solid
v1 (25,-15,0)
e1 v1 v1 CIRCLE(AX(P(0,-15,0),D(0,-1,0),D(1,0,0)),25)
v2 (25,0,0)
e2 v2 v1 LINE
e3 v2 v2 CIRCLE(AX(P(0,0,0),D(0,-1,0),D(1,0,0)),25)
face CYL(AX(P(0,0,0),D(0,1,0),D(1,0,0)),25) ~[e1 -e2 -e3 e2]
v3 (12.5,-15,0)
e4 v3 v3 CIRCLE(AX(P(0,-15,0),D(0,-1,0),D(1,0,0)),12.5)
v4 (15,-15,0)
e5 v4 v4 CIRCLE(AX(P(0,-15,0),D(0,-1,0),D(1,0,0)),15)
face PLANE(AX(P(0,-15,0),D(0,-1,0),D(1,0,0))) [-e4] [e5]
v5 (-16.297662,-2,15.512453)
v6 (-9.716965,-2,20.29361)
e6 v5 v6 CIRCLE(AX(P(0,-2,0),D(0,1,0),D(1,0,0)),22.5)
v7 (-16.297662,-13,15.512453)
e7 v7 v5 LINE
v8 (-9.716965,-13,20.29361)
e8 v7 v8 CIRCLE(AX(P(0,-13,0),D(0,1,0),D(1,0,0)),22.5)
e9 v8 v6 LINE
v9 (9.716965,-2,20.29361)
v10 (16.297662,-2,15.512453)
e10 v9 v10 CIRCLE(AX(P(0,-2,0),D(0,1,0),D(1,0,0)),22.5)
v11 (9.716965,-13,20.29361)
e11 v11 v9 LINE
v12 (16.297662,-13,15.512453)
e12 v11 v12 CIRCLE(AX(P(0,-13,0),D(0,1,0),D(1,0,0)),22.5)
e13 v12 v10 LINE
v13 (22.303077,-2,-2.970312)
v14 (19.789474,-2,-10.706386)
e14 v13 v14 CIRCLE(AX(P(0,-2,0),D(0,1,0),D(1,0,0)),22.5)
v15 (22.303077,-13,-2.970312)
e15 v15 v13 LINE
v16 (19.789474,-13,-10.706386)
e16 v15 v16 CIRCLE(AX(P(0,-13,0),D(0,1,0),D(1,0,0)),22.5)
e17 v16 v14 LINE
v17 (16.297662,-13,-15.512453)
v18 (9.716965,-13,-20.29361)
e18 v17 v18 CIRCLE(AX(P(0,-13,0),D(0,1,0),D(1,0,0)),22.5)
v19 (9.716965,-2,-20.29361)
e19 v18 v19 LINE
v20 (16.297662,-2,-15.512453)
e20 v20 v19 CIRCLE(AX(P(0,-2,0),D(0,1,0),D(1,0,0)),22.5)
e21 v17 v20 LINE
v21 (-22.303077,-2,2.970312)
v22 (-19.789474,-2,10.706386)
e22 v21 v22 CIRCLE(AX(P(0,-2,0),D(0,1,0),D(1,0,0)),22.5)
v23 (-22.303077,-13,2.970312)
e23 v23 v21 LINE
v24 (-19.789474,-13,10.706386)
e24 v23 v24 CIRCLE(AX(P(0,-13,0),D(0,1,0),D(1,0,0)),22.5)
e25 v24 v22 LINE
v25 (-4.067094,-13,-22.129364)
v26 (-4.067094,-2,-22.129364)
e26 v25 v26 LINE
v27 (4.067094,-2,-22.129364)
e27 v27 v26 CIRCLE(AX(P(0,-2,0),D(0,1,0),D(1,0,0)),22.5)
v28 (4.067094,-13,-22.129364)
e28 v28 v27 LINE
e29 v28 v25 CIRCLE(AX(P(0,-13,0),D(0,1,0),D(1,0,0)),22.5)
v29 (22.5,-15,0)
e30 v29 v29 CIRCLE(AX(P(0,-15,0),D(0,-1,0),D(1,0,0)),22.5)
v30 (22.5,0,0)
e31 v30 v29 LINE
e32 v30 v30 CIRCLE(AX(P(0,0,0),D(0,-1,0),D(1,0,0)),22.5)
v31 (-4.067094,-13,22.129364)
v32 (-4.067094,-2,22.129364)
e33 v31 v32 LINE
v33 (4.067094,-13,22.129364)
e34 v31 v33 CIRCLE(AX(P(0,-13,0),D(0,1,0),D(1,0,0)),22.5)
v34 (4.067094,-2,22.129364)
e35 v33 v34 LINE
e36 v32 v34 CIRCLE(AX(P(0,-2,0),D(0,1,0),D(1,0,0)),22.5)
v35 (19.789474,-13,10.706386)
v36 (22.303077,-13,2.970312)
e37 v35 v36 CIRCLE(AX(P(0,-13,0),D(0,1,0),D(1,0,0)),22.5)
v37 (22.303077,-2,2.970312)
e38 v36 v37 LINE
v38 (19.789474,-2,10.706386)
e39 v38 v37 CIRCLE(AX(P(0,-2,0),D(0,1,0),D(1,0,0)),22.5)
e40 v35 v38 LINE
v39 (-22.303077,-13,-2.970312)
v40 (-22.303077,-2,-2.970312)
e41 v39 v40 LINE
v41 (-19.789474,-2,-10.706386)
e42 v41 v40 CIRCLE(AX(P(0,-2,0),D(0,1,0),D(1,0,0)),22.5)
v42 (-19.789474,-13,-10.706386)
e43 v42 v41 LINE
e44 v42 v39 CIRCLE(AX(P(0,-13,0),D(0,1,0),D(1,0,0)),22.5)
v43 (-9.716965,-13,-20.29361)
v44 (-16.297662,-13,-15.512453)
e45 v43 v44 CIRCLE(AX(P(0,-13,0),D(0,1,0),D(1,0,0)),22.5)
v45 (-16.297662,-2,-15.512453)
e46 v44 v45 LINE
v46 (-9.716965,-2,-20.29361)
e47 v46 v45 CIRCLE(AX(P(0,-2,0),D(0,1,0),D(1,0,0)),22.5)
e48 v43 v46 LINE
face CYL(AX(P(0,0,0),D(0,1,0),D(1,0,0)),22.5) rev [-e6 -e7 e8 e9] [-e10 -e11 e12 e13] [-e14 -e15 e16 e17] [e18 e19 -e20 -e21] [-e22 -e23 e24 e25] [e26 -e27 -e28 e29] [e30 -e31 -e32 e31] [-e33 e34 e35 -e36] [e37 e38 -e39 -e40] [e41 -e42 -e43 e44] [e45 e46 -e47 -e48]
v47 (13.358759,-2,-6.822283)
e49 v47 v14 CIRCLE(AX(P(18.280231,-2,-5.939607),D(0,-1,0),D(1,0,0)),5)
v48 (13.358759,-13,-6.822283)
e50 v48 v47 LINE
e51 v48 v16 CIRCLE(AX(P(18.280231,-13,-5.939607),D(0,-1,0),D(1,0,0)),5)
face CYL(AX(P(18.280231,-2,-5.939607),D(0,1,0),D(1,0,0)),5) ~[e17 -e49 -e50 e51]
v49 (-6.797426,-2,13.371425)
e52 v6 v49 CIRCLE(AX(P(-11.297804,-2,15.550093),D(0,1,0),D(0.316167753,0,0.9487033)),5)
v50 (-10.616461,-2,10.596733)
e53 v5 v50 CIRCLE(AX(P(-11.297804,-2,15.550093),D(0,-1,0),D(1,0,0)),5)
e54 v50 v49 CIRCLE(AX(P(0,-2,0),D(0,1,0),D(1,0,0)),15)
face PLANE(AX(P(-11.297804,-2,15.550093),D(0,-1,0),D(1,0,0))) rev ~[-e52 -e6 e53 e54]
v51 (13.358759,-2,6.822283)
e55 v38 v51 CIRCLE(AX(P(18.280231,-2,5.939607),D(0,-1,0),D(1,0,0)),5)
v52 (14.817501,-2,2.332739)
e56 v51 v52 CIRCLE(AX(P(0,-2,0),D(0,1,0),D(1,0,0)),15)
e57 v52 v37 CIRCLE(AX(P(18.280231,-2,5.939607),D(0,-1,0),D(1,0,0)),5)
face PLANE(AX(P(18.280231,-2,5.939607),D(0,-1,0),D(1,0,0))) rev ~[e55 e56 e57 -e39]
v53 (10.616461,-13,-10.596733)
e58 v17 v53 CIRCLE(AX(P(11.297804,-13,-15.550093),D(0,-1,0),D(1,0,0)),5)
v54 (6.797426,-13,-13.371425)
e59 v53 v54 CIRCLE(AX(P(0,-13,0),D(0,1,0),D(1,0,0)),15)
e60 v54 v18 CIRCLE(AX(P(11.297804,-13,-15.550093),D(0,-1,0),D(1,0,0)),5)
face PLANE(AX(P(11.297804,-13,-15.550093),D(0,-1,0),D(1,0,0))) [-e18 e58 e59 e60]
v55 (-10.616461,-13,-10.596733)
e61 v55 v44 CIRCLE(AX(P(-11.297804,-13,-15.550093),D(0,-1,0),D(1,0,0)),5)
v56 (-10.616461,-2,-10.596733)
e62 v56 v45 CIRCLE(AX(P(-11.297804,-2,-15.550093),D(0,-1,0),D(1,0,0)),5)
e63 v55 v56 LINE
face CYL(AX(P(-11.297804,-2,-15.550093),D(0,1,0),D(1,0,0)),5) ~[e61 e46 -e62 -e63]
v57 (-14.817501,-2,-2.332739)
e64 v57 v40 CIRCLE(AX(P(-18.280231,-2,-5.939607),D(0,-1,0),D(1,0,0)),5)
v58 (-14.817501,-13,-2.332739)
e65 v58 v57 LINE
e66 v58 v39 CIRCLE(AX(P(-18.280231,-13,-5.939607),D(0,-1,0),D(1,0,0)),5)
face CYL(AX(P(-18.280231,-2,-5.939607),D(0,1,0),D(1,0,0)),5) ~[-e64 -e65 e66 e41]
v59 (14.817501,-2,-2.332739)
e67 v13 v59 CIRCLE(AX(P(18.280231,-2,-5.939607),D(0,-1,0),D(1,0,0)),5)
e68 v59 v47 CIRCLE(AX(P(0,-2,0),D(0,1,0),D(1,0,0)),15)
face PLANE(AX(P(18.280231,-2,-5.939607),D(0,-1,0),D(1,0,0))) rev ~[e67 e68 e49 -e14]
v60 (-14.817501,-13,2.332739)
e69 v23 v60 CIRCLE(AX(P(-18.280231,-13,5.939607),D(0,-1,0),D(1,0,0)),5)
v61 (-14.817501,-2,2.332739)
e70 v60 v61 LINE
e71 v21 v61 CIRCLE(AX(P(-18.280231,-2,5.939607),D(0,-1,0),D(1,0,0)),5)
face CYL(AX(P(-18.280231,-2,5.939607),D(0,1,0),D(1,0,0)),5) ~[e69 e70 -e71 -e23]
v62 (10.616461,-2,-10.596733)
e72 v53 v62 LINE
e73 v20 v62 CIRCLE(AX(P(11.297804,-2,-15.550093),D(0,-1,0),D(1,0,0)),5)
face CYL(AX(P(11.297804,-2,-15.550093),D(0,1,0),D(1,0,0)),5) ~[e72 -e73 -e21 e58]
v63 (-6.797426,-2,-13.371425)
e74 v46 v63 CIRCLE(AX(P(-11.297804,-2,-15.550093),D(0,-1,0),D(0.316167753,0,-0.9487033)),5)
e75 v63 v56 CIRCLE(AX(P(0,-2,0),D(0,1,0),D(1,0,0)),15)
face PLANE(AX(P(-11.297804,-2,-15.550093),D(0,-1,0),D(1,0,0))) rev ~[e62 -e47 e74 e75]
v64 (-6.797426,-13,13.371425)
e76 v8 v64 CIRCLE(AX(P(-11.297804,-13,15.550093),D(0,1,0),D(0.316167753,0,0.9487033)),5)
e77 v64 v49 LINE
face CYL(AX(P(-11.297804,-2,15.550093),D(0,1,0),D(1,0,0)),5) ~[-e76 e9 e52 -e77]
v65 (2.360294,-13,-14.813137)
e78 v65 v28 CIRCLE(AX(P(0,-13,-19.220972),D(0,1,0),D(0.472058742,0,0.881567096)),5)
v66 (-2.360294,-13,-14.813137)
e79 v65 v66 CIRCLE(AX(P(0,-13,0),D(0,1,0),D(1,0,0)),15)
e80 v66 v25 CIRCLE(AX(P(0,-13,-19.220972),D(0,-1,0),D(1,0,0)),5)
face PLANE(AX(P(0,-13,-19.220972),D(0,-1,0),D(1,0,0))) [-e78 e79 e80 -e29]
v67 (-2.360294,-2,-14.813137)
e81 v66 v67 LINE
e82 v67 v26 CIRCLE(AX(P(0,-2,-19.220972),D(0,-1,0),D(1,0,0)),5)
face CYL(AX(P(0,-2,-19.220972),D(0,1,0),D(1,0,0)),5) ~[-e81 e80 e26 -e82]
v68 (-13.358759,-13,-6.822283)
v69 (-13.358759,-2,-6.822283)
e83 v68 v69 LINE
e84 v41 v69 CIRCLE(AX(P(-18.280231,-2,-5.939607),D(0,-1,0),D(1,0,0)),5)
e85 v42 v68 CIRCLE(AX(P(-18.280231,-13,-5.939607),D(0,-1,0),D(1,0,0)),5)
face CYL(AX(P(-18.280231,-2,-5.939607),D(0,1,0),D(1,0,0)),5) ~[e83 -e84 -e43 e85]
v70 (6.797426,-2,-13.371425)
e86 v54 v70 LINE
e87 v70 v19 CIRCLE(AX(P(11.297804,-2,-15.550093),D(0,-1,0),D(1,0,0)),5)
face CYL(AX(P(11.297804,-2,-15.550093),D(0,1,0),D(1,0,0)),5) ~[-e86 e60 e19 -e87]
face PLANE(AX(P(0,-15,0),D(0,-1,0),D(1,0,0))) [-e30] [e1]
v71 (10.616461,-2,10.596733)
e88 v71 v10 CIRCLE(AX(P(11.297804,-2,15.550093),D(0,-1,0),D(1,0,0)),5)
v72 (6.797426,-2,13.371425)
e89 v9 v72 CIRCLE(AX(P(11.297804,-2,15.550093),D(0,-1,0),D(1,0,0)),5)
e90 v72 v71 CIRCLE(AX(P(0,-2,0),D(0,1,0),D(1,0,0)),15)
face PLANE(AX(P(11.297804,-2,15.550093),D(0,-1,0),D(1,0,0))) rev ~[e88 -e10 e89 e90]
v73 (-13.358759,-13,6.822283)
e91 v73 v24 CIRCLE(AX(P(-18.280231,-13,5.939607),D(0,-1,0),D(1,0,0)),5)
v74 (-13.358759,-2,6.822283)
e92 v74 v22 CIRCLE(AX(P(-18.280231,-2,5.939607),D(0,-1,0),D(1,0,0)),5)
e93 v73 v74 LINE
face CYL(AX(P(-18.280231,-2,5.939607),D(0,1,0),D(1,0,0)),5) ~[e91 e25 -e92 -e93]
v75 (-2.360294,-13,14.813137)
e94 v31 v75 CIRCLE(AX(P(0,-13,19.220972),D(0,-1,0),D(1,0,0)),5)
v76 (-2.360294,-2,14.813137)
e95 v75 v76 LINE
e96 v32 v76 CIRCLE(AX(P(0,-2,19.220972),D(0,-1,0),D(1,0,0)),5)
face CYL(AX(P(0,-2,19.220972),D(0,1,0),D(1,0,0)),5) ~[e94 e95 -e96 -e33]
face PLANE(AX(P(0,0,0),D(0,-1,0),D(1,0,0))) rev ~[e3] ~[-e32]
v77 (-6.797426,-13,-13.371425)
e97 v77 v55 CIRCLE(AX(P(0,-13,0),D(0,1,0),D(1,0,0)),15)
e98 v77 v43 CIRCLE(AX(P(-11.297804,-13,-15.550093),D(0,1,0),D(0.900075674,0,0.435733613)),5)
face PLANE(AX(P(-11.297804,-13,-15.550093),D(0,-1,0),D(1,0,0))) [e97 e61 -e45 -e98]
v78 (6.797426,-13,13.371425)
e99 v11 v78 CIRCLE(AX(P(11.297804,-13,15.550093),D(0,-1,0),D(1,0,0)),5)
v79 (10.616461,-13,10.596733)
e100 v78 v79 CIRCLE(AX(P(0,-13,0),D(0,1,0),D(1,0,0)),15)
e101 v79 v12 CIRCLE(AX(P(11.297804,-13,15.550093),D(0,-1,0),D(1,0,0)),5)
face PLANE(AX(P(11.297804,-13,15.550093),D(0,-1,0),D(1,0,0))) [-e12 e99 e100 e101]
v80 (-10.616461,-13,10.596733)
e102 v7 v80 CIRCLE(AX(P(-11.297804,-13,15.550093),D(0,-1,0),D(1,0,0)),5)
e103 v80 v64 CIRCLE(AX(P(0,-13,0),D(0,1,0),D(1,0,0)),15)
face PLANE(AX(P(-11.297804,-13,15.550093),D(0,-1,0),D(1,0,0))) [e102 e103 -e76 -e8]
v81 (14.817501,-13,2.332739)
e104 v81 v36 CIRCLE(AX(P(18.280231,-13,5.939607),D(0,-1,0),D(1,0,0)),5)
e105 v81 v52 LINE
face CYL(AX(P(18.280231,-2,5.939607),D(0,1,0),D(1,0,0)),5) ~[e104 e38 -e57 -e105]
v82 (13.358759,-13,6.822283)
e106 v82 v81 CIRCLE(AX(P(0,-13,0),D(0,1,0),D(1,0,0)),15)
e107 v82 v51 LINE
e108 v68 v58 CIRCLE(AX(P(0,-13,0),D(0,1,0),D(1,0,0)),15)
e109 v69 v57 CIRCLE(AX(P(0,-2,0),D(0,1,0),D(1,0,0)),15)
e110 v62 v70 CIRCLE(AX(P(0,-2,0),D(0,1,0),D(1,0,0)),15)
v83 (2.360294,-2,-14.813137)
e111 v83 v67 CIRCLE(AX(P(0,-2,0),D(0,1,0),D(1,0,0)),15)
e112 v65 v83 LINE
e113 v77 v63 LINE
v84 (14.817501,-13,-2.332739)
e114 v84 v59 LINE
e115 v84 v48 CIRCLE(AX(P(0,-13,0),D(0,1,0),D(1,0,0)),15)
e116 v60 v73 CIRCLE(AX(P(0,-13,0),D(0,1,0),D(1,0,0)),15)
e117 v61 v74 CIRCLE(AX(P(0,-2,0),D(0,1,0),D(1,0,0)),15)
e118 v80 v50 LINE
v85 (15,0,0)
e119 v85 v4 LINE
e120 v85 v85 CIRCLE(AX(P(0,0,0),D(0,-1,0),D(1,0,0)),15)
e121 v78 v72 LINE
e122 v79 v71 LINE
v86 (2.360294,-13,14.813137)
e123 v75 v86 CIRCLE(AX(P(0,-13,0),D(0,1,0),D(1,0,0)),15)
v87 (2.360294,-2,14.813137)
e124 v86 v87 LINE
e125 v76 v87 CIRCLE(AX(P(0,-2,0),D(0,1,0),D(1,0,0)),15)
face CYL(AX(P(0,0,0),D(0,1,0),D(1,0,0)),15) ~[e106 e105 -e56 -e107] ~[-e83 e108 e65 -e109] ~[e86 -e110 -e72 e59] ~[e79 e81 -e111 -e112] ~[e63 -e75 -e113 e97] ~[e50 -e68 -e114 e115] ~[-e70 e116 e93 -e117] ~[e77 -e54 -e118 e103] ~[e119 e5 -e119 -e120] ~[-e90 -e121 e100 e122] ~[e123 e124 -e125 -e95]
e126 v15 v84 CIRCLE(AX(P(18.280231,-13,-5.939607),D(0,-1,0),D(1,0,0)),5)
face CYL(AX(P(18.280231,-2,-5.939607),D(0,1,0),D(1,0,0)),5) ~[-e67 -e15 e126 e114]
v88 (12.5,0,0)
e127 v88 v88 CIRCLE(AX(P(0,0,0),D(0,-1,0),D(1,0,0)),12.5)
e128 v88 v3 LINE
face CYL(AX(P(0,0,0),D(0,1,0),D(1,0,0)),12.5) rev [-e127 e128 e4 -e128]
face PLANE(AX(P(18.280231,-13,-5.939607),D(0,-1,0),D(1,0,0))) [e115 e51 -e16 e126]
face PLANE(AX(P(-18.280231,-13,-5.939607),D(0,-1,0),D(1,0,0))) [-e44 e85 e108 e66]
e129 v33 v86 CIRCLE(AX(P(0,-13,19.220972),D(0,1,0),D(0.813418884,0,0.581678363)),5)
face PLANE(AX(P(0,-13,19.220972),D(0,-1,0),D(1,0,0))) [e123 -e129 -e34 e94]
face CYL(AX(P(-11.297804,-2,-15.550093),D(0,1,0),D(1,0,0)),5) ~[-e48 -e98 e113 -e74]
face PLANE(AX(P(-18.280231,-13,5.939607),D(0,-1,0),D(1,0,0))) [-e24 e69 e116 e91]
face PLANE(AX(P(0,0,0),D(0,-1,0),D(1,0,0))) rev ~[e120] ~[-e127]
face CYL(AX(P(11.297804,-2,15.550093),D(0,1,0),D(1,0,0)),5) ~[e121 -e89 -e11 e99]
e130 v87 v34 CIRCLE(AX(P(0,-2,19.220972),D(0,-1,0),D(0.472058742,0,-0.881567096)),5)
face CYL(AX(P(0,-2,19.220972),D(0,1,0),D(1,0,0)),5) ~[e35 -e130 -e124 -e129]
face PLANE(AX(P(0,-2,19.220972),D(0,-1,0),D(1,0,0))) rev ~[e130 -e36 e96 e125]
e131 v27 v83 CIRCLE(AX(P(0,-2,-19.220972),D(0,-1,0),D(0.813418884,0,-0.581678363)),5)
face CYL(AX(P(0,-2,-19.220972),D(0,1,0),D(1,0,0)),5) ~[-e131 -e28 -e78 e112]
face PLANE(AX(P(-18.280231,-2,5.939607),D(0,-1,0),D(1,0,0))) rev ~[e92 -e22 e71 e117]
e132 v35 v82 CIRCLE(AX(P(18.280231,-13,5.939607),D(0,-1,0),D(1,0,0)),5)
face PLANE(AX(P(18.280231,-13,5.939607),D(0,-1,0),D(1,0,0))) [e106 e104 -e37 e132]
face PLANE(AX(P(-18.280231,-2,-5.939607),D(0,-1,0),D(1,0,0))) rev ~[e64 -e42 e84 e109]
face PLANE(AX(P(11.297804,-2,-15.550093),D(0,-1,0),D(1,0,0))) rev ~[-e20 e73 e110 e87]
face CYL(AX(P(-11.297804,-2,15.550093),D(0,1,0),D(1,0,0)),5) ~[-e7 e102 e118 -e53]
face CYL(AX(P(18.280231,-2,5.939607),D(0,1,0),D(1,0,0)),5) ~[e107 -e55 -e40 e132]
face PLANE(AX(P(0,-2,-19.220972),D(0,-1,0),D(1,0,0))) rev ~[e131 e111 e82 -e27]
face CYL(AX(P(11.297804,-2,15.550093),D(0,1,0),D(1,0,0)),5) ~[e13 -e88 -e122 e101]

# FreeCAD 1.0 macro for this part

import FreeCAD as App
import Part
import Sketcher

V = App.Vector
Q = App.Units.Quantity

doc = App.newDocument("Part")
body = doc.addObject("PartDesign::Body", "Body")
body.AllowCompound = True

# Sketch on XZ plane
sketch1 = body.newObject("Sketcher::SketchObject", "Sketch")
sketch1.AttachmentSupport = (doc.getObject("XZ_Plane"), [""])
sketch1.MapMode = "FlatFace"
sketch1.addGeometry([
    Part.Circle(V(0, 0, 0), V(0, 0, 1), 25),
    Part.Circle(V(0, 0, 0), V(0, 0, 1), 22),
    Part.Circle(V(0, 0, 0), V(0, 0, 1), 15),
    Part.Circle(V(0, 0, 0), V(0, 0, 1), 12),
], False)
sketch1.addConstraint([
    Sketcher.Constraint("Coincident", 0, 3, -1, 1),
    Sketcher.Constraint("Coincident", 1, 3, -1, 1),
    Sketcher.Constraint("Coincident", 2, 3, -1, 1),
    Sketcher.Constraint("Coincident", 3, 3, -1, 1),
    Sketcher.Constraint("Diameter", 0, Q("50 mm")),
    Sketcher.Constraint("Diameter", 1, Q("45 mm")),
    Sketcher.Constraint("Diameter", 2, Q("30 mm")),
    Sketcher.Constraint("Diameter", 3, Q("25 mm")),
])
pad1 = body.newObject("PartDesign::Pad", "Pad")
pad1.Profile = sketch1
pad1.Length = 15

# Sketch on XZ plane
sketch2 = body.newObject("Sketcher::SketchObject", "Sketch001")
sketch2.AttachmentSupport = (doc.getObject("XZ_Plane"), [""])
sketch2.MapMode = "FlatFace"
sketch2.AttachmentOffset = App.Placement(V(0, 0, 2), App.Rotation())
sketch2.addGeometry([
    Part.Circle(V(0, 19, 0), V(0, 0, 1), 5),  # 0
    Part.Circle(V(-11, 16, 0), V(0, 0, 1), 5),  # 1
    Part.Circle(V(-18, 6, 0), V(0, 0, 1), 5),  # 2
    Part.Circle(V(-18, -6, 0), V(0, 0, 1), 5),  # 3
    Part.Circle(V(-11, -16, 0), V(0, 0, 1), 5),  # 4
    Part.Circle(V(0, -19, 0), V(0, 0, 1), 5),  # 5
    Part.Circle(V(11, -16, 0), V(0, 0, 1), 5),  # 6
    Part.Circle(V(18, -6, 0), V(0, 0, 1), 5),  # 7
    Part.Circle(V(18, 6, 0), V(0, 0, 1), 5),  # 8
    Part.Circle(V(11, 16, 0), V(0, 0, 1), 5),  # 9
], False)
sketch2.addConstraint([
    Sketcher.Constraint("Equal", 0, 1),
    Sketcher.Constraint("Equal", 1, 2),
    Sketcher.Constraint("Equal", 2, 3),
    Sketcher.Constraint("Equal", 3, 4),
    Sketcher.Constraint("Equal", 4, 5),
    Sketcher.Constraint("Equal", 5, 6),
    Sketcher.Constraint("Equal", 6, 7),
    Sketcher.Constraint("Equal", 7, 8),
    Sketcher.Constraint("Equal", 8, 9),
    Sketcher.Constraint("Symmetric", 0, 3, 5, 3, -1, 1),
    Sketcher.Constraint("Symmetric", 1, 3, 6, 3, -1, 1),
    Sketcher.Constraint("Symmetric", 2, 3, 7, 3, -1, 1),
    Sketcher.Constraint("Symmetric", 3, 3, 8, 3, -1, 1),
    Sketcher.Constraint("Symmetric", 4, 3, 9, 3, -1, 1),
    Sketcher.Constraint("Symmetric", 4, 3, 6, 3, -2),
    Sketcher.Constraint("Symmetric", 3, 3, 7, 3, -2),
    Sketcher.Constraint("PointOnObject", 0, 3, -2),
    Sketcher.Constraint("Diameter", 0, Q("10 mm")),
    Sketcher.Constraint("DistanceY", 3, 3, 1, 3, Q("21.4897 mm")),
    Sketcher.Constraint("DistanceY", -1, 1, 0, 3, Q("19.220972 mm")),
    Sketcher.Constraint("DistanceX", 2, 3, -1, 1, Q("18.280231 mm")),
    Sketcher.Constraint("DistanceY", 1, 3, 0, 3, Q("3.670879 mm")),
    Sketcher.Constraint("DistanceX", 1, 3, -1, 1, Q("11.297804 mm")),
])
pad2 = body.newObject("PartDesign::Pad", "Pad001")
pad2.Profile = sketch2
pad2.Length = 11

doc.recompute()
